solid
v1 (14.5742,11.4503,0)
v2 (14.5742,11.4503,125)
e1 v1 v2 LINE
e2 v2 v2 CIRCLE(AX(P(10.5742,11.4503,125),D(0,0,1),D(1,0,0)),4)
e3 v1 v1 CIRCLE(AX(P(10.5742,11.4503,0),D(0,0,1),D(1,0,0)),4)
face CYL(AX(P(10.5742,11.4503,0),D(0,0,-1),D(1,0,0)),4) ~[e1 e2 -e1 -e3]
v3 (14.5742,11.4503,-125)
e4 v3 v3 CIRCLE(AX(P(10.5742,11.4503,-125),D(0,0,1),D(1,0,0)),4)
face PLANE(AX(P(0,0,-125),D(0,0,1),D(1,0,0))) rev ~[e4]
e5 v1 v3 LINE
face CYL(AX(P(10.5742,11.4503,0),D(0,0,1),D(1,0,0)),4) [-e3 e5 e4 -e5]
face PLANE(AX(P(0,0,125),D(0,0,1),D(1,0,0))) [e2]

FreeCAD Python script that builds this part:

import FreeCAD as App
import Part
import Sketcher

V = App.Vector
Q = App.Units.Quantity

doc = App.newDocument("Part")
body = doc.addObject("PartDesign::Body", "Body")

# Sketch on XY plane
sketch1 = body.newObject("Sketcher::SketchObject", "Sketch")
sketch1.AttachmentSupport = (doc.getObject("XY_Plane"), [""])
sketch1.MapMode = "FlatFace"
sketch1.addGeometry(Part.Circle(V(10.6, 11.5, 0), V(0, 0, 1), 4), False)
sketch1.addConstraint([
    Sketcher.Constraint("Diameter", 0, Q("8 mm")),
    Sketcher.Constraint("DistanceX", -1, 1, 0, 3, Q("10.5742 mm")),
    Sketcher.Constraint("DistanceY", -1, 1, 0, 3, Q("11.4503 mm")),
])
pad1 = body.newObject("PartDesign::Pad", "Pad")
pad1.Profile = sketch1
pad1.Length = 250
pad1.Midplane = True

doc.recompute()
